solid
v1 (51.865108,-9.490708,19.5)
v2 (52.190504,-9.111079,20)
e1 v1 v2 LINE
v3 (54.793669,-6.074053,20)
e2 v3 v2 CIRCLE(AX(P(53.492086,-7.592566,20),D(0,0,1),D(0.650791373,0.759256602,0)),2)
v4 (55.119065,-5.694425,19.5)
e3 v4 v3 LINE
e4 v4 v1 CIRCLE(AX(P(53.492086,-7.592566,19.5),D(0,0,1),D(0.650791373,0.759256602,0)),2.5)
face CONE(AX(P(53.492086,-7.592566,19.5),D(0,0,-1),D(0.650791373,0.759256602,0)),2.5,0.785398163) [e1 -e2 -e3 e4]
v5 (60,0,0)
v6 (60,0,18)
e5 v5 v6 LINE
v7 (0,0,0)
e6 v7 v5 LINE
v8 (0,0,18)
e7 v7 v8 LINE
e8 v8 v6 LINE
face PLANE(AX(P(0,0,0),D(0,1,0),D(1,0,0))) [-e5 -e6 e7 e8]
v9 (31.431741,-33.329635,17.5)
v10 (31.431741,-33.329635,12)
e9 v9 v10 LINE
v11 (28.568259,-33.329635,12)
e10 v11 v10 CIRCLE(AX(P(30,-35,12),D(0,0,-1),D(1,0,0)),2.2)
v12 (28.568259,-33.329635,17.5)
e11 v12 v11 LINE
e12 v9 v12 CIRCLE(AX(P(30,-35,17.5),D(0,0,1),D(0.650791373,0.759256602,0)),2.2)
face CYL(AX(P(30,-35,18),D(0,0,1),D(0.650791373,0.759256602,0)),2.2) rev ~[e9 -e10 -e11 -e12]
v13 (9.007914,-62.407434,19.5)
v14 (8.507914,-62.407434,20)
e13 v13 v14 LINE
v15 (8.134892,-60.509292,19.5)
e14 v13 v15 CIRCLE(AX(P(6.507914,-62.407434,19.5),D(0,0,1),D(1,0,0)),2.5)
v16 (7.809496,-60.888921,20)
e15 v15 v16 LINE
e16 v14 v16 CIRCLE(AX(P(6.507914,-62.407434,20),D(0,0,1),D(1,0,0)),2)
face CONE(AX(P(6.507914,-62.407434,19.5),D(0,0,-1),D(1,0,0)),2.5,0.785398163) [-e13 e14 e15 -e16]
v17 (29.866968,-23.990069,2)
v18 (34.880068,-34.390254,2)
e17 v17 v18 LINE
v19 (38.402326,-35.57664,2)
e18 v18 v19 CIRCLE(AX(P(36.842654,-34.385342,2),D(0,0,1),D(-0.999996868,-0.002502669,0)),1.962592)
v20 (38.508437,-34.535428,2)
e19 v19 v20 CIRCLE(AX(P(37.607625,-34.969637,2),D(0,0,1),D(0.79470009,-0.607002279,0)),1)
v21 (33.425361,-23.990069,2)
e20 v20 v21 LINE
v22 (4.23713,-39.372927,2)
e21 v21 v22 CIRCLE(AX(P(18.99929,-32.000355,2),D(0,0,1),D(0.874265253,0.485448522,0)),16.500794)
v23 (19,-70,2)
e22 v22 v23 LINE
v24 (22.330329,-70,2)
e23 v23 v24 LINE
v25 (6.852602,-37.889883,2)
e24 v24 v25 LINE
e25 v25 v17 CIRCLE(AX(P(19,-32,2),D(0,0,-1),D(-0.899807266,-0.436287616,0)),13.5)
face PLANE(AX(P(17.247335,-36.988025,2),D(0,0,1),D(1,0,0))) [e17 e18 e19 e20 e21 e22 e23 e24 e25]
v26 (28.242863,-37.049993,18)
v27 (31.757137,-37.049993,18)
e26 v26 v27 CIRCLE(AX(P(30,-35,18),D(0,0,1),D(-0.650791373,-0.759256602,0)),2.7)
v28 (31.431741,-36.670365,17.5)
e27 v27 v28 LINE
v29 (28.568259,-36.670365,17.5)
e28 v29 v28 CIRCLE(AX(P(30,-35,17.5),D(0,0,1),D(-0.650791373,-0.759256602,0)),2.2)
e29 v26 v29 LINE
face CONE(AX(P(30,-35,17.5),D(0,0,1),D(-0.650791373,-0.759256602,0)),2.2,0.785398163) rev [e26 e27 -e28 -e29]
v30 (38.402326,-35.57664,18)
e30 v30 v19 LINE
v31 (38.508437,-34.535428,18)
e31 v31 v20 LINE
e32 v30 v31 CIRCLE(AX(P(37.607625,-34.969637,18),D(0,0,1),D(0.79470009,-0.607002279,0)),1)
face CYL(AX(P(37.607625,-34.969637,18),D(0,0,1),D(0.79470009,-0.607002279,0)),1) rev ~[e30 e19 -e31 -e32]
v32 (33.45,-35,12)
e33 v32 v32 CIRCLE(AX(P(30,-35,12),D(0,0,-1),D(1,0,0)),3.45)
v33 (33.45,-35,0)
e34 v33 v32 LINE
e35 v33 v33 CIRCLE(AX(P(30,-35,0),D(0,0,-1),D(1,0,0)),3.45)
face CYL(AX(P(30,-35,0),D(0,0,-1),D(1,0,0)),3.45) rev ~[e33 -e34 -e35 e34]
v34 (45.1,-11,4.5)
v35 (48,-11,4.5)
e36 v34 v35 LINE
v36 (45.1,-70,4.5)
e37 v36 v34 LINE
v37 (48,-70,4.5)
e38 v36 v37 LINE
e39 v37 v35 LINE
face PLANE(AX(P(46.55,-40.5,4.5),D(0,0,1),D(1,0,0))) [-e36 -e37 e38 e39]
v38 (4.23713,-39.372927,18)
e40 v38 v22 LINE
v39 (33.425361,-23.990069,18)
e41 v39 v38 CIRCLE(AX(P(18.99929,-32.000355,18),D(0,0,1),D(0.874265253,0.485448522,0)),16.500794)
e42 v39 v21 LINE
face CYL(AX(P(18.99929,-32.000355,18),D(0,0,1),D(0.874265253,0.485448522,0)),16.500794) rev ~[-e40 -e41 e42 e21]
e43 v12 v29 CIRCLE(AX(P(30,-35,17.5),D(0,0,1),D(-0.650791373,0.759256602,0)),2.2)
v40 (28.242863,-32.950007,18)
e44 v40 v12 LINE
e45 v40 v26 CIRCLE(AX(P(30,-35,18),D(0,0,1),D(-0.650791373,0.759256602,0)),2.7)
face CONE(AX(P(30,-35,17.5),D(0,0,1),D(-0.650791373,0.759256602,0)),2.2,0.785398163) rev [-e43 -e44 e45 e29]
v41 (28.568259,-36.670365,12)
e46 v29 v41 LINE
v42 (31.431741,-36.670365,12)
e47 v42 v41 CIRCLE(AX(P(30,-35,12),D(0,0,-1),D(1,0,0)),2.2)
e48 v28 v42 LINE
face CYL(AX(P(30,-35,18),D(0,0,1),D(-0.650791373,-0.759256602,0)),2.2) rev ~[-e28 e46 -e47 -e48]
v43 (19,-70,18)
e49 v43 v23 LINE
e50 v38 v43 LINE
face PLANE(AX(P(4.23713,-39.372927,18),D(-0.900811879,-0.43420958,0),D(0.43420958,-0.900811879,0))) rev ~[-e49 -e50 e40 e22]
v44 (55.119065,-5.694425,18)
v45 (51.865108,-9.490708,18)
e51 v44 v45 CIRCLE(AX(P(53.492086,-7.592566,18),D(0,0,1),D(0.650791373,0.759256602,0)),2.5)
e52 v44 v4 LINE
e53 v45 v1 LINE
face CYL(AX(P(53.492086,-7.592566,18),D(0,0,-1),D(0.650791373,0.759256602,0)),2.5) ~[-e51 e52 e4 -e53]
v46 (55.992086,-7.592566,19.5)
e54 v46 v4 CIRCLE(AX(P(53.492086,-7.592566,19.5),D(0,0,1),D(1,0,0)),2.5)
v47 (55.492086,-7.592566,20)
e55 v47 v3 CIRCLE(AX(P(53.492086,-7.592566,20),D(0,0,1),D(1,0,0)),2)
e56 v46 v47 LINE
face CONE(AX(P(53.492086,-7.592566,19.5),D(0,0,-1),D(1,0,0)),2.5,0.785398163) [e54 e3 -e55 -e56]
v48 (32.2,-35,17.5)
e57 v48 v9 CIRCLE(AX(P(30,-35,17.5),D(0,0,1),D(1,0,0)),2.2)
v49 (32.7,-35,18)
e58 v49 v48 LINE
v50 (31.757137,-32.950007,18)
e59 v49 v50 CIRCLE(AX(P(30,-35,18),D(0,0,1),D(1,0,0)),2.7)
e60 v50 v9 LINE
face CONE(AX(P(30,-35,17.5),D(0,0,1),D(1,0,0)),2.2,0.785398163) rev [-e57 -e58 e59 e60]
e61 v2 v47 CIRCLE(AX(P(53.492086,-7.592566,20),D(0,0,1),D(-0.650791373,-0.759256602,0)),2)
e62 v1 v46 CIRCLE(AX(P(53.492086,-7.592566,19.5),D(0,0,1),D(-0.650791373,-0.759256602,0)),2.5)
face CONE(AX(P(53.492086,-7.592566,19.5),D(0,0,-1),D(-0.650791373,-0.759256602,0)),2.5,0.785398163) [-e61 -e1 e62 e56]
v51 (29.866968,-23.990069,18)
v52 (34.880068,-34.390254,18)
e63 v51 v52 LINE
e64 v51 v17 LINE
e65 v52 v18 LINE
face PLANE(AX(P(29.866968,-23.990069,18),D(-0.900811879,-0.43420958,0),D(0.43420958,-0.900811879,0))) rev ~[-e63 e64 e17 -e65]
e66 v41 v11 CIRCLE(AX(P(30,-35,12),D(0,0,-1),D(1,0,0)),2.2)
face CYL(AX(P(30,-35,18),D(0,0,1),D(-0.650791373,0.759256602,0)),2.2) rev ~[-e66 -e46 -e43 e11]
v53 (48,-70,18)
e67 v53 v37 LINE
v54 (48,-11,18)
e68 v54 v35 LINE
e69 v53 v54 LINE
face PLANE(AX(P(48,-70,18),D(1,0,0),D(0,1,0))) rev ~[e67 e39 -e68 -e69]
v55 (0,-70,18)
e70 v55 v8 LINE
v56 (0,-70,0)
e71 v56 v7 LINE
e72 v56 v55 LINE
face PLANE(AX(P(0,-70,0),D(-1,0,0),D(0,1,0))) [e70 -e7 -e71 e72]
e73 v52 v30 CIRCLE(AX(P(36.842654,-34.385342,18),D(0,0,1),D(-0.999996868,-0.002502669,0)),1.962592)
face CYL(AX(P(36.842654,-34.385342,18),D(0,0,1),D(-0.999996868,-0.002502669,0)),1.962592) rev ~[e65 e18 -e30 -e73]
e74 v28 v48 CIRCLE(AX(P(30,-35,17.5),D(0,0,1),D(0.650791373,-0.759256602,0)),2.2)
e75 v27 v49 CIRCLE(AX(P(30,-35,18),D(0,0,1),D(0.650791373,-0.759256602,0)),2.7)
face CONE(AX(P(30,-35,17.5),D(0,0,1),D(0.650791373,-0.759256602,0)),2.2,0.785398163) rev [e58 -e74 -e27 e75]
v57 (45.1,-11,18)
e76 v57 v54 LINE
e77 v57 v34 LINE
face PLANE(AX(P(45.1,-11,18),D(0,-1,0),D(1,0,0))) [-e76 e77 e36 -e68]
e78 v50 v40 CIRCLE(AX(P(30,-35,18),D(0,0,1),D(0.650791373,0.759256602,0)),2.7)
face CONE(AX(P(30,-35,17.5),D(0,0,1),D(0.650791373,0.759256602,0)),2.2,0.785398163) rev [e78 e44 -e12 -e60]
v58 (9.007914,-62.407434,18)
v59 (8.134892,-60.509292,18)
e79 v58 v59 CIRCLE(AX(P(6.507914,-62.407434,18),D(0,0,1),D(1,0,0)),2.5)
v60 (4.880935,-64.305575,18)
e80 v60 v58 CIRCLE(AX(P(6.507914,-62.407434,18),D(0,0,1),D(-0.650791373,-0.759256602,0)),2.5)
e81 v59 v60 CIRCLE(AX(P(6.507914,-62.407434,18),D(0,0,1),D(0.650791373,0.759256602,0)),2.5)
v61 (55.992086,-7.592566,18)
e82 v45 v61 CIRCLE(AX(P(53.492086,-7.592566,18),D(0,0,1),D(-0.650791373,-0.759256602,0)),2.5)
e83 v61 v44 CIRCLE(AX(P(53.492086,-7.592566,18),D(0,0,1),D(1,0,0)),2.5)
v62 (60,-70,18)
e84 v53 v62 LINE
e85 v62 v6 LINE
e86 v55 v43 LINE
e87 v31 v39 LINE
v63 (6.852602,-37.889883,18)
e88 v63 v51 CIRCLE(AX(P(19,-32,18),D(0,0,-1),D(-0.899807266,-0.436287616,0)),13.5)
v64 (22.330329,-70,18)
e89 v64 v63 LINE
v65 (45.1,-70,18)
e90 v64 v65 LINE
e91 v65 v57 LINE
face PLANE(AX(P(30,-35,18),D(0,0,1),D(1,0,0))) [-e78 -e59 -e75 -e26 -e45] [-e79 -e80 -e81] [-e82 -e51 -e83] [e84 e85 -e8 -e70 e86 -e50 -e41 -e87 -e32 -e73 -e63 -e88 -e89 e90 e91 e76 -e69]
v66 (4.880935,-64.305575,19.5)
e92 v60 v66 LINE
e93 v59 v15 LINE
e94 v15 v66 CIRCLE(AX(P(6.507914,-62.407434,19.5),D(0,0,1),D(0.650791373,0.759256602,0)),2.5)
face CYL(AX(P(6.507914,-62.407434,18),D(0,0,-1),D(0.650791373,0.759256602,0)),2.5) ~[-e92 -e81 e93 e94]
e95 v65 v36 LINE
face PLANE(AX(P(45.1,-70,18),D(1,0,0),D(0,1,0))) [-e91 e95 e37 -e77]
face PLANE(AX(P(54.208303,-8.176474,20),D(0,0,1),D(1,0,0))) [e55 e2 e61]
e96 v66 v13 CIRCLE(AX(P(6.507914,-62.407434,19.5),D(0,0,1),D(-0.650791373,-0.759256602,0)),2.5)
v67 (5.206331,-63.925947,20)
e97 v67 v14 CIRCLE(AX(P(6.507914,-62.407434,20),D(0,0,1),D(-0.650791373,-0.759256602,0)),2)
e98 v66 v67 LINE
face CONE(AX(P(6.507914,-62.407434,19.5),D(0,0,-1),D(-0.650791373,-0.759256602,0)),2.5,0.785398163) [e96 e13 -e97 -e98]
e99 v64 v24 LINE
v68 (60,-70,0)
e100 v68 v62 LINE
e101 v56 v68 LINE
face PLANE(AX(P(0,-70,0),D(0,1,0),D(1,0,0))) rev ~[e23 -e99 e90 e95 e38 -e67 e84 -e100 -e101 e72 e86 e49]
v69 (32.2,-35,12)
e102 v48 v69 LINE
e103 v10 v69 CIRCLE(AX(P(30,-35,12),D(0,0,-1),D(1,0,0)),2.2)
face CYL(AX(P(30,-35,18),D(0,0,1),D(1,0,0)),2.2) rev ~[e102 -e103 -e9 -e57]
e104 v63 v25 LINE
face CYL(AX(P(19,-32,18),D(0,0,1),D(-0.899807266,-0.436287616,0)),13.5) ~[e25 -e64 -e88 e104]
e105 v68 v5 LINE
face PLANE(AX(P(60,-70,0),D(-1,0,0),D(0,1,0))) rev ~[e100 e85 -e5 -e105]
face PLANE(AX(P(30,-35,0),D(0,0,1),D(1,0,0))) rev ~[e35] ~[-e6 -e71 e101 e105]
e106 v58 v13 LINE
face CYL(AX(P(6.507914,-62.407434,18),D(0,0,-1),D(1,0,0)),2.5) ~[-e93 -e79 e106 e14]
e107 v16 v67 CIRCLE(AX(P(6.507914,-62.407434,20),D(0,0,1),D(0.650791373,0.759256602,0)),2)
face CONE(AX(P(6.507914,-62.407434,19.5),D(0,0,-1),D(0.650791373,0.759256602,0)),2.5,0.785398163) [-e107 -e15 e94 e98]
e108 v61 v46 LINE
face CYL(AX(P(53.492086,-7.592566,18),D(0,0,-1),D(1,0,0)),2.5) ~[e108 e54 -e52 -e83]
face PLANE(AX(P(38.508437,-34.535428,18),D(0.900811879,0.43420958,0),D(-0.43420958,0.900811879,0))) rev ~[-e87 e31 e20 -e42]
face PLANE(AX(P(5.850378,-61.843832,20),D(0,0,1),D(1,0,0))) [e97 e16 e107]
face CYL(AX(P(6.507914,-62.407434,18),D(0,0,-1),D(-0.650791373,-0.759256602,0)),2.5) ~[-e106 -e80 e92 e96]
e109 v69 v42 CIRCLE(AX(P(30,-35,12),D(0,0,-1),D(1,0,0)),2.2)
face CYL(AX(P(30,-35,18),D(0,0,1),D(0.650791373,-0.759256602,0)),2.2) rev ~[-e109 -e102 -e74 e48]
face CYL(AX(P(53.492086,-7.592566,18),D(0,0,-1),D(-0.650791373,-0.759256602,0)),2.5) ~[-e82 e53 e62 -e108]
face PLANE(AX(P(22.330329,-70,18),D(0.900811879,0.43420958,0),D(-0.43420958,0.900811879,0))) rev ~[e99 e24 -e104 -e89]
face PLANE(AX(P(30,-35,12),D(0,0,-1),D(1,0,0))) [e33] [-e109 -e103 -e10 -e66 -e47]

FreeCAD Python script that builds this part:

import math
import FreeCAD as App
import Part
import Sketcher
from FreeCAD import Vector
Q = App.Units.Quantity


def edges_at(feature, points):
    """Names of the edges that pass closest to the given points."""
    edges = feature.Shape.Edges
    near = lambda p: min(range(len(edges)), key=lambda i: edges[i].distToShape(Part.Vertex(*p))[0])
    return sorted({f"Edge{near(p) + 1}" for p in points})


def add_polygon(sketch, points):
    """Adds a closed chain of lines whose ends are joined by coincident constraints."""
    first, n = sketch.GeometryCount, len(points)
    for a, b in zip(points, points[1:] + points[:1]):
        sketch.addGeometry(Part.LineSegment(App.Vector(*a, 0), App.Vector(*b, 0)), False)
    for i in range(n):
        sketch.addConstraint(Sketcher.Constraint("Coincident", first + i, 2, first + (i + 1) % n, 1))

doc = App.newDocument("Part")
body = doc.addObject("PartDesign::Body", "Body")

sketch1 = body.newObject("Sketcher::SketchObject", "Sketch")
sketch1.AttachmentSupport = (doc.getObject("XY_Plane"), [""])
sketch1.MapMode = "FlatFace"
add_polygon(sketch1, [(0, 0), (0, -70), (60, -70), (60, 0)])
sketch1.addConstraint([
    Sketcher.Constraint("Vertical", 0),
    Sketcher.Constraint("Horizontal", 1),
    Sketcher.Constraint("Vertical", 2),
    Sketcher.Constraint("Horizontal", 3),
    Sketcher.Constraint("Coincident", 3, 2, -1, 1),
    Sketcher.Constraint("DistanceX", 1, 1, 1, 2, Q("60 mm")),
    Sketcher.Constraint("DistanceY", 0, 2, 0, 1, Q("70 mm")),
])
pad1 = body.newObject("PartDesign::Pad", "Pad")
pad1.Profile = sketch1
pad1.Length = 18

sketch2 = body.newObject("Sketcher::SketchObject", "Sketch001")
sketch2.AttachmentSupport = (doc.getObject("XY_Plane"), [""])
sketch2.MapMode = "FlatFace"
sketch2.AttachmentOffset = App.Placement(Vector(0, 0, 18), App.Rotation())
add_polygon(sketch2, [(45.1, -11), (45.1, -70), (48, -70), (48, -11)])
sketch2.addConstraint([
    Sketcher.Constraint("Vertical", 0),
    Sketcher.Constraint("Horizontal", 1),
    Sketcher.Constraint("Vertical", 2),
    Sketcher.Constraint("Horizontal", 3),
    Sketcher.Constraint("DistanceY", 0, 2, 0, 1, Q("59 mm")),
    Sketcher.Constraint("DistanceX", 1, 1, 1, 2, Q("2.9 mm")),
    Sketcher.Constraint("DistanceY", 0, 2, -1, 1, Q("70 mm")),
    Sketcher.Constraint("DistanceX", -1, 1, 1, 2, Q("48 mm")),
])
pocket1 = body.newObject("PartDesign::Pocket", "Pocket")
pocket1.Profile = sketch2
pocket1.Length = 13.5

sketch3 = body.newObject("Sketcher::SketchObject", "Sketch002")
sketch3.AttachmentSupport = (doc.getObject("XY_Plane"), [""])
sketch3.MapMode = "FlatFace"
sketch3.AttachmentOffset = App.Placement(Vector(0, 0, 18), App.Rotation())
sketch3.addGeometry([
    Part.LineSegment(Vector(4.2, -39.4, 0), Vector(19, -70, 0)),
    Part.LineSegment(Vector(19, -70, 0), Vector(22.3, -70, 0)),
    Part.LineSegment(Vector(22.3, -70, 0), Vector(6.9, -37.9, 0)),
    Part.ArcOfCircle(Part.Circle(Vector(19, -32, 0), Vector(0, 0, 1), 13.5), math.radians(36), math.radians(206)),
    Part.LineSegment(Vector(29.9, -24, 0), Vector(34.9, -34.4, 0)),
    Part.ArcOfCircle(Part.Circle(Vector(36.8, -34.4, 0), Vector(0, 0, 1), 2), math.radians(-180), math.radians(-37)),
    Part.ArcOfCircle(Part.Circle(Vector(37.6, -35, 0), Vector(0, 0, 1), 1), math.radians(-37), math.radians(26)),
    Part.LineSegment(Vector(38.5, -34.5, 0), Vector(33.4, -24, 0)),
    Part.ArcOfCircle(Part.Circle(Vector(19, -32, 0), Vector(0, 0, 1), 16.5), math.radians(29), math.radians(207)),
], False)
sketch3.addConstraint([
    Sketcher.Constraint("Coincident", 0, 2, 1, 1),
    Sketcher.Constraint("Coincident", 1, 2, 2, 1),
    Sketcher.Constraint("Coincident", 2, 2, 3, 2),
    Sketcher.Constraint("Coincident", 3, 1, 4, 1),
    Sketcher.Constraint("Coincident", 4, 2, 5, 1),
    Sketcher.Constraint("Tangent", 5, 2, 6, 1),
    Sketcher.Constraint("Tangent", 6, 2, 7, 1),
    Sketcher.Constraint("Coincident", 7, 2, 8, 1),
    Sketcher.Constraint("Coincident", 8, 2, 0, 1),
    Sketcher.Constraint("Horizontal", 1),
    Sketcher.Constraint("Parallel", 0, 2),
    Sketcher.Constraint("Parallel", 2, 4),
    Sketcher.Constraint("Parallel", 4, 7),
    Sketcher.Constraint("Horizontal", 3, 1, 7, 2),
    Sketcher.Constraint("Vertical", 3, 3, 0, 2),
    Sketcher.Constraint("Radius", 6, Q("1 mm")),
    Sketcher.Constraint("Radius", 3, Q("13.5 mm")),
    Sketcher.Constraint("DistanceX", -1, 1, 3, 3, Q("19 mm")),
    Sketcher.Constraint("DistanceY", 3, 3, -1, 1, Q("32 mm")),
    Sketcher.Constraint("DistanceY", 0, 2, -1, 1, Q("70 mm")),
    Sketcher.Constraint("Radius", 5, Q("1.962592 mm")),
    Sketcher.Constraint("Radius", 8, Q("16.500794 mm")),
    Sketcher.Constraint("DistanceX", 1, 1, 1, 2, Q("3.330329 mm")),
    Sketcher.Constraint("DistanceX", -1, 1, 2, 2, Q("6.852602 mm")),
    Sketcher.Constraint("DistanceX", 3, 1, 4, 2, Q("5.0131 mm")),
    Sketcher.Constraint("DistanceY", 4, 2, 8, 3, Q("2.389899 mm")),
    Sketcher.Constraint("DistanceX", 6, 3, 5, 2, Q("0.7947 mm")),
    Sketcher.Constraint("Distance", 0, Q("33.999411 mm")),
    Sketcher.Constraint("DistanceX", -1, 1, 8, 3, Q("18.99929 mm")),
])
pocket2 = body.newObject("PartDesign::Pocket", "Pocket001")
pocket2.Profile = sketch3
pocket2.Length = 16

sketch4 = body.newObject("Sketcher::SketchObject", "Sketch003")
sketch4.AttachmentSupport = (doc.getObject("XY_Plane"), [""])
sketch4.MapMode = "FlatFace"
sketch4.AttachmentOffset = App.Placement(Vector(0, 0, 18), App.Rotation())
sketch4.addGeometry([
    Part.ArcOfCircle(Part.Circle(Vector(30, -35, 0), Vector(0, 0, 1), 2.2), math.radians(131), math.radians(229)),
    Part.ArcOfCircle(Part.Circle(Vector(30, -35, 0), Vector(0, 0, 1), 2.2), math.radians(-131), math.radians(-49)),
    Part.ArcOfCircle(Part.Circle(Vector(30, -35, 0), Vector(0, 0, 1), 2.2), math.radians(-49), math.radians(0)),
    Part.ArcOfCircle(Part.Circle(Vector(30, -35, 0), Vector(0, 0, 1), 2.2), math.radians(0), math.radians(49)),
    Part.ArcOfCircle(Part.Circle(Vector(30, -35, 0), Vector(0, 0, 1), 2.2), math.radians(49), math.radians(131)),
], False)
sketch4.addConstraint([
    Sketcher.Constraint("Tangent", 0, 2, 1, 1),
    Sketcher.Constraint("Tangent", 1, 2, 2, 1),
    Sketcher.Constraint("Tangent", 2, 2, 3, 1),
    Sketcher.Constraint("Tangent", 3, 2, 4, 1),
    Sketcher.Constraint("Tangent", 4, 2, 0, 1),
    Sketcher.Constraint("Coincident", 2, 3, 0, 3),
    Sketcher.Constraint("Horizontal", 0, 2, 1, 2),
    Sketcher.Constraint("Horizontal", 4, 3, 2, 2),
    Sketcher.Constraint("Horizontal", 3, 2, 4, 2),
    Sketcher.Constraint("Vertical", 1, 2, 3, 2),
    Sketcher.Constraint("Radius", 0, Q("2.2 mm")),
    Sketcher.Constraint("DistanceX", -1, 1, 0, 3, Q("30 mm")),
    Sketcher.Constraint("DistanceY", 0, 3, -1, 1, Q("35 mm")),
    Sketcher.Constraint("DistanceX", -1, 1, 0, 2, Q("28.568259 mm")),
])
pocket3 = body.newObject("PartDesign::Pocket", "Pocket002")
pocket3.Profile = sketch4
pocket3.Length = 25

sketch5 = body.newObject("Sketcher::SketchObject", "Sketch004")
sketch5.AttachmentSupport = (doc.getObject("XY_Plane"), [""])
sketch5.MapMode = "FlatFace"
sketch5.AttachmentOffset = App.Placement(Vector(0, 0, 18), App.Rotation())
sketch5.addGeometry([
    Part.ArcOfCircle(Part.Circle(Vector(6.5, -62.4, 0), Vector(0, 0, 1), 2.5), math.radians(49), math.radians(229)),
    Part.ArcOfCircle(Part.Circle(Vector(6.5, -62.4, 0), Vector(0, 0, 1), 2.5), math.radians(-131), math.radians(0)),
    Part.ArcOfCircle(Part.Circle(Vector(6.5, -62.4, 0), Vector(0, 0, 1), 2.5), math.radians(0), math.radians(49)),
    Part.ArcOfCircle(Part.Circle(Vector(53.5, -7.6, 0), Vector(0, 0, 1), 2.5), math.radians(0), math.radians(49)),
    Part.ArcOfCircle(Part.Circle(Vector(53.5, -7.6, 0), Vector(0, 0, 1), 2.5), math.radians(49), math.radians(229)),
    Part.ArcOfCircle(Part.Circle(Vector(53.5, -7.6, 0), Vector(0, 0, 1), 2.5), math.radians(-131), math.radians(0)),
], False)
sketch5.addConstraint([
    Sketcher.Constraint("Tangent", 0, 2, 1, 1),
    Sketcher.Constraint("Tangent", 1, 2, 2, 1),
    Sketcher.Constraint("Tangent", 2, 2, 0, 1),
    Sketcher.Constraint("Tangent", 3, 2, 4, 1),
    Sketcher.Constraint("Tangent", 4, 2, 5, 1),
    Sketcher.Constraint("Tangent", 5, 2, 3, 1),
    Sketcher.Constraint("Equal", 2, 3),
    Sketcher.Constraint("Horizontal", 2, 3, 1, 2),
    Sketcher.Constraint("Horizontal", 4, 3, 5, 2),
    Sketcher.Constraint("Radius", 0, Q("2.5 mm")),
    Sketcher.Constraint("DistanceX", 0, 2, 2, 3, Q("1.626978 mm")),
    Sketcher.Constraint("DistanceX", 0, 2, 4, 3, Q("48.611151 mm")),
    Sketcher.Constraint("DistanceY", 0, 2, 4, 3, Q("56.713009 mm")),
    Sketcher.Constraint("DistanceX", 2, 2, 1, 2, Q("0.873022 mm")),
    Sketcher.Constraint("DistanceX", 3, 3, 3, 2, Q("1.626978 mm")),
    Sketcher.Constraint("DistanceX", 4, 2, 4, 3, Q("1.626978 mm")),
    Sketcher.Constraint("DistanceX", -1, 1, 0, 3, Q("6.507914 mm")),
    Sketcher.Constraint("DistanceY", 0, 3, -1, 1, Q("62.407434 mm")),
])
pad2 = body.newObject("PartDesign::Pad", "Pad001")
pad2.Profile = sketch5
pad2.Length = 2
doc.recompute()

chamfer = body.newObject("PartDesign::Chamfer", "Chamfer")
chamfer.Base = (pad2, edges_at(pad2, [(4.61, -60.78, 20), (54.537, -9.864, 20), (27.8, -35, 18)]))
chamfer.Size = 0.5

sketch6 = body.newObject("Sketcher::SketchObject", "Sketch005")
sketch6.AttachmentSupport = (doc.getObject("XY_Plane"), [""])
sketch6.MapMode = "FlatFace"
sketch6.addGeometry([
    Part.Circle(Vector(30, -35, 0), Vector(0, 0, 1), 3.5),
    Part.Circle(Vector(30, -35, 0), Vector(0, 0, 1), 2.2),
], False)
sketch6.addConstraint([
    Sketcher.Constraint("Coincident", 1, 3, 0, 3),
    Sketcher.Constraint("Diameter", 0, Q("6.9 mm")),
    Sketcher.Constraint("Diameter", 1, Q("4.4 mm")),
    Sketcher.Constraint("DistanceX", -1, 1, 0, 3, Q("30 mm")),
    Sketcher.Constraint("DistanceY", 0, 3, -1, 1, Q("35 mm")),
])
pocket4 = body.newObject("PartDesign::Pocket", "Pocket003")
pocket4.Profile = sketch6
pocket4.Length = 12
pocket4.Reversed = True

doc.recompute()
